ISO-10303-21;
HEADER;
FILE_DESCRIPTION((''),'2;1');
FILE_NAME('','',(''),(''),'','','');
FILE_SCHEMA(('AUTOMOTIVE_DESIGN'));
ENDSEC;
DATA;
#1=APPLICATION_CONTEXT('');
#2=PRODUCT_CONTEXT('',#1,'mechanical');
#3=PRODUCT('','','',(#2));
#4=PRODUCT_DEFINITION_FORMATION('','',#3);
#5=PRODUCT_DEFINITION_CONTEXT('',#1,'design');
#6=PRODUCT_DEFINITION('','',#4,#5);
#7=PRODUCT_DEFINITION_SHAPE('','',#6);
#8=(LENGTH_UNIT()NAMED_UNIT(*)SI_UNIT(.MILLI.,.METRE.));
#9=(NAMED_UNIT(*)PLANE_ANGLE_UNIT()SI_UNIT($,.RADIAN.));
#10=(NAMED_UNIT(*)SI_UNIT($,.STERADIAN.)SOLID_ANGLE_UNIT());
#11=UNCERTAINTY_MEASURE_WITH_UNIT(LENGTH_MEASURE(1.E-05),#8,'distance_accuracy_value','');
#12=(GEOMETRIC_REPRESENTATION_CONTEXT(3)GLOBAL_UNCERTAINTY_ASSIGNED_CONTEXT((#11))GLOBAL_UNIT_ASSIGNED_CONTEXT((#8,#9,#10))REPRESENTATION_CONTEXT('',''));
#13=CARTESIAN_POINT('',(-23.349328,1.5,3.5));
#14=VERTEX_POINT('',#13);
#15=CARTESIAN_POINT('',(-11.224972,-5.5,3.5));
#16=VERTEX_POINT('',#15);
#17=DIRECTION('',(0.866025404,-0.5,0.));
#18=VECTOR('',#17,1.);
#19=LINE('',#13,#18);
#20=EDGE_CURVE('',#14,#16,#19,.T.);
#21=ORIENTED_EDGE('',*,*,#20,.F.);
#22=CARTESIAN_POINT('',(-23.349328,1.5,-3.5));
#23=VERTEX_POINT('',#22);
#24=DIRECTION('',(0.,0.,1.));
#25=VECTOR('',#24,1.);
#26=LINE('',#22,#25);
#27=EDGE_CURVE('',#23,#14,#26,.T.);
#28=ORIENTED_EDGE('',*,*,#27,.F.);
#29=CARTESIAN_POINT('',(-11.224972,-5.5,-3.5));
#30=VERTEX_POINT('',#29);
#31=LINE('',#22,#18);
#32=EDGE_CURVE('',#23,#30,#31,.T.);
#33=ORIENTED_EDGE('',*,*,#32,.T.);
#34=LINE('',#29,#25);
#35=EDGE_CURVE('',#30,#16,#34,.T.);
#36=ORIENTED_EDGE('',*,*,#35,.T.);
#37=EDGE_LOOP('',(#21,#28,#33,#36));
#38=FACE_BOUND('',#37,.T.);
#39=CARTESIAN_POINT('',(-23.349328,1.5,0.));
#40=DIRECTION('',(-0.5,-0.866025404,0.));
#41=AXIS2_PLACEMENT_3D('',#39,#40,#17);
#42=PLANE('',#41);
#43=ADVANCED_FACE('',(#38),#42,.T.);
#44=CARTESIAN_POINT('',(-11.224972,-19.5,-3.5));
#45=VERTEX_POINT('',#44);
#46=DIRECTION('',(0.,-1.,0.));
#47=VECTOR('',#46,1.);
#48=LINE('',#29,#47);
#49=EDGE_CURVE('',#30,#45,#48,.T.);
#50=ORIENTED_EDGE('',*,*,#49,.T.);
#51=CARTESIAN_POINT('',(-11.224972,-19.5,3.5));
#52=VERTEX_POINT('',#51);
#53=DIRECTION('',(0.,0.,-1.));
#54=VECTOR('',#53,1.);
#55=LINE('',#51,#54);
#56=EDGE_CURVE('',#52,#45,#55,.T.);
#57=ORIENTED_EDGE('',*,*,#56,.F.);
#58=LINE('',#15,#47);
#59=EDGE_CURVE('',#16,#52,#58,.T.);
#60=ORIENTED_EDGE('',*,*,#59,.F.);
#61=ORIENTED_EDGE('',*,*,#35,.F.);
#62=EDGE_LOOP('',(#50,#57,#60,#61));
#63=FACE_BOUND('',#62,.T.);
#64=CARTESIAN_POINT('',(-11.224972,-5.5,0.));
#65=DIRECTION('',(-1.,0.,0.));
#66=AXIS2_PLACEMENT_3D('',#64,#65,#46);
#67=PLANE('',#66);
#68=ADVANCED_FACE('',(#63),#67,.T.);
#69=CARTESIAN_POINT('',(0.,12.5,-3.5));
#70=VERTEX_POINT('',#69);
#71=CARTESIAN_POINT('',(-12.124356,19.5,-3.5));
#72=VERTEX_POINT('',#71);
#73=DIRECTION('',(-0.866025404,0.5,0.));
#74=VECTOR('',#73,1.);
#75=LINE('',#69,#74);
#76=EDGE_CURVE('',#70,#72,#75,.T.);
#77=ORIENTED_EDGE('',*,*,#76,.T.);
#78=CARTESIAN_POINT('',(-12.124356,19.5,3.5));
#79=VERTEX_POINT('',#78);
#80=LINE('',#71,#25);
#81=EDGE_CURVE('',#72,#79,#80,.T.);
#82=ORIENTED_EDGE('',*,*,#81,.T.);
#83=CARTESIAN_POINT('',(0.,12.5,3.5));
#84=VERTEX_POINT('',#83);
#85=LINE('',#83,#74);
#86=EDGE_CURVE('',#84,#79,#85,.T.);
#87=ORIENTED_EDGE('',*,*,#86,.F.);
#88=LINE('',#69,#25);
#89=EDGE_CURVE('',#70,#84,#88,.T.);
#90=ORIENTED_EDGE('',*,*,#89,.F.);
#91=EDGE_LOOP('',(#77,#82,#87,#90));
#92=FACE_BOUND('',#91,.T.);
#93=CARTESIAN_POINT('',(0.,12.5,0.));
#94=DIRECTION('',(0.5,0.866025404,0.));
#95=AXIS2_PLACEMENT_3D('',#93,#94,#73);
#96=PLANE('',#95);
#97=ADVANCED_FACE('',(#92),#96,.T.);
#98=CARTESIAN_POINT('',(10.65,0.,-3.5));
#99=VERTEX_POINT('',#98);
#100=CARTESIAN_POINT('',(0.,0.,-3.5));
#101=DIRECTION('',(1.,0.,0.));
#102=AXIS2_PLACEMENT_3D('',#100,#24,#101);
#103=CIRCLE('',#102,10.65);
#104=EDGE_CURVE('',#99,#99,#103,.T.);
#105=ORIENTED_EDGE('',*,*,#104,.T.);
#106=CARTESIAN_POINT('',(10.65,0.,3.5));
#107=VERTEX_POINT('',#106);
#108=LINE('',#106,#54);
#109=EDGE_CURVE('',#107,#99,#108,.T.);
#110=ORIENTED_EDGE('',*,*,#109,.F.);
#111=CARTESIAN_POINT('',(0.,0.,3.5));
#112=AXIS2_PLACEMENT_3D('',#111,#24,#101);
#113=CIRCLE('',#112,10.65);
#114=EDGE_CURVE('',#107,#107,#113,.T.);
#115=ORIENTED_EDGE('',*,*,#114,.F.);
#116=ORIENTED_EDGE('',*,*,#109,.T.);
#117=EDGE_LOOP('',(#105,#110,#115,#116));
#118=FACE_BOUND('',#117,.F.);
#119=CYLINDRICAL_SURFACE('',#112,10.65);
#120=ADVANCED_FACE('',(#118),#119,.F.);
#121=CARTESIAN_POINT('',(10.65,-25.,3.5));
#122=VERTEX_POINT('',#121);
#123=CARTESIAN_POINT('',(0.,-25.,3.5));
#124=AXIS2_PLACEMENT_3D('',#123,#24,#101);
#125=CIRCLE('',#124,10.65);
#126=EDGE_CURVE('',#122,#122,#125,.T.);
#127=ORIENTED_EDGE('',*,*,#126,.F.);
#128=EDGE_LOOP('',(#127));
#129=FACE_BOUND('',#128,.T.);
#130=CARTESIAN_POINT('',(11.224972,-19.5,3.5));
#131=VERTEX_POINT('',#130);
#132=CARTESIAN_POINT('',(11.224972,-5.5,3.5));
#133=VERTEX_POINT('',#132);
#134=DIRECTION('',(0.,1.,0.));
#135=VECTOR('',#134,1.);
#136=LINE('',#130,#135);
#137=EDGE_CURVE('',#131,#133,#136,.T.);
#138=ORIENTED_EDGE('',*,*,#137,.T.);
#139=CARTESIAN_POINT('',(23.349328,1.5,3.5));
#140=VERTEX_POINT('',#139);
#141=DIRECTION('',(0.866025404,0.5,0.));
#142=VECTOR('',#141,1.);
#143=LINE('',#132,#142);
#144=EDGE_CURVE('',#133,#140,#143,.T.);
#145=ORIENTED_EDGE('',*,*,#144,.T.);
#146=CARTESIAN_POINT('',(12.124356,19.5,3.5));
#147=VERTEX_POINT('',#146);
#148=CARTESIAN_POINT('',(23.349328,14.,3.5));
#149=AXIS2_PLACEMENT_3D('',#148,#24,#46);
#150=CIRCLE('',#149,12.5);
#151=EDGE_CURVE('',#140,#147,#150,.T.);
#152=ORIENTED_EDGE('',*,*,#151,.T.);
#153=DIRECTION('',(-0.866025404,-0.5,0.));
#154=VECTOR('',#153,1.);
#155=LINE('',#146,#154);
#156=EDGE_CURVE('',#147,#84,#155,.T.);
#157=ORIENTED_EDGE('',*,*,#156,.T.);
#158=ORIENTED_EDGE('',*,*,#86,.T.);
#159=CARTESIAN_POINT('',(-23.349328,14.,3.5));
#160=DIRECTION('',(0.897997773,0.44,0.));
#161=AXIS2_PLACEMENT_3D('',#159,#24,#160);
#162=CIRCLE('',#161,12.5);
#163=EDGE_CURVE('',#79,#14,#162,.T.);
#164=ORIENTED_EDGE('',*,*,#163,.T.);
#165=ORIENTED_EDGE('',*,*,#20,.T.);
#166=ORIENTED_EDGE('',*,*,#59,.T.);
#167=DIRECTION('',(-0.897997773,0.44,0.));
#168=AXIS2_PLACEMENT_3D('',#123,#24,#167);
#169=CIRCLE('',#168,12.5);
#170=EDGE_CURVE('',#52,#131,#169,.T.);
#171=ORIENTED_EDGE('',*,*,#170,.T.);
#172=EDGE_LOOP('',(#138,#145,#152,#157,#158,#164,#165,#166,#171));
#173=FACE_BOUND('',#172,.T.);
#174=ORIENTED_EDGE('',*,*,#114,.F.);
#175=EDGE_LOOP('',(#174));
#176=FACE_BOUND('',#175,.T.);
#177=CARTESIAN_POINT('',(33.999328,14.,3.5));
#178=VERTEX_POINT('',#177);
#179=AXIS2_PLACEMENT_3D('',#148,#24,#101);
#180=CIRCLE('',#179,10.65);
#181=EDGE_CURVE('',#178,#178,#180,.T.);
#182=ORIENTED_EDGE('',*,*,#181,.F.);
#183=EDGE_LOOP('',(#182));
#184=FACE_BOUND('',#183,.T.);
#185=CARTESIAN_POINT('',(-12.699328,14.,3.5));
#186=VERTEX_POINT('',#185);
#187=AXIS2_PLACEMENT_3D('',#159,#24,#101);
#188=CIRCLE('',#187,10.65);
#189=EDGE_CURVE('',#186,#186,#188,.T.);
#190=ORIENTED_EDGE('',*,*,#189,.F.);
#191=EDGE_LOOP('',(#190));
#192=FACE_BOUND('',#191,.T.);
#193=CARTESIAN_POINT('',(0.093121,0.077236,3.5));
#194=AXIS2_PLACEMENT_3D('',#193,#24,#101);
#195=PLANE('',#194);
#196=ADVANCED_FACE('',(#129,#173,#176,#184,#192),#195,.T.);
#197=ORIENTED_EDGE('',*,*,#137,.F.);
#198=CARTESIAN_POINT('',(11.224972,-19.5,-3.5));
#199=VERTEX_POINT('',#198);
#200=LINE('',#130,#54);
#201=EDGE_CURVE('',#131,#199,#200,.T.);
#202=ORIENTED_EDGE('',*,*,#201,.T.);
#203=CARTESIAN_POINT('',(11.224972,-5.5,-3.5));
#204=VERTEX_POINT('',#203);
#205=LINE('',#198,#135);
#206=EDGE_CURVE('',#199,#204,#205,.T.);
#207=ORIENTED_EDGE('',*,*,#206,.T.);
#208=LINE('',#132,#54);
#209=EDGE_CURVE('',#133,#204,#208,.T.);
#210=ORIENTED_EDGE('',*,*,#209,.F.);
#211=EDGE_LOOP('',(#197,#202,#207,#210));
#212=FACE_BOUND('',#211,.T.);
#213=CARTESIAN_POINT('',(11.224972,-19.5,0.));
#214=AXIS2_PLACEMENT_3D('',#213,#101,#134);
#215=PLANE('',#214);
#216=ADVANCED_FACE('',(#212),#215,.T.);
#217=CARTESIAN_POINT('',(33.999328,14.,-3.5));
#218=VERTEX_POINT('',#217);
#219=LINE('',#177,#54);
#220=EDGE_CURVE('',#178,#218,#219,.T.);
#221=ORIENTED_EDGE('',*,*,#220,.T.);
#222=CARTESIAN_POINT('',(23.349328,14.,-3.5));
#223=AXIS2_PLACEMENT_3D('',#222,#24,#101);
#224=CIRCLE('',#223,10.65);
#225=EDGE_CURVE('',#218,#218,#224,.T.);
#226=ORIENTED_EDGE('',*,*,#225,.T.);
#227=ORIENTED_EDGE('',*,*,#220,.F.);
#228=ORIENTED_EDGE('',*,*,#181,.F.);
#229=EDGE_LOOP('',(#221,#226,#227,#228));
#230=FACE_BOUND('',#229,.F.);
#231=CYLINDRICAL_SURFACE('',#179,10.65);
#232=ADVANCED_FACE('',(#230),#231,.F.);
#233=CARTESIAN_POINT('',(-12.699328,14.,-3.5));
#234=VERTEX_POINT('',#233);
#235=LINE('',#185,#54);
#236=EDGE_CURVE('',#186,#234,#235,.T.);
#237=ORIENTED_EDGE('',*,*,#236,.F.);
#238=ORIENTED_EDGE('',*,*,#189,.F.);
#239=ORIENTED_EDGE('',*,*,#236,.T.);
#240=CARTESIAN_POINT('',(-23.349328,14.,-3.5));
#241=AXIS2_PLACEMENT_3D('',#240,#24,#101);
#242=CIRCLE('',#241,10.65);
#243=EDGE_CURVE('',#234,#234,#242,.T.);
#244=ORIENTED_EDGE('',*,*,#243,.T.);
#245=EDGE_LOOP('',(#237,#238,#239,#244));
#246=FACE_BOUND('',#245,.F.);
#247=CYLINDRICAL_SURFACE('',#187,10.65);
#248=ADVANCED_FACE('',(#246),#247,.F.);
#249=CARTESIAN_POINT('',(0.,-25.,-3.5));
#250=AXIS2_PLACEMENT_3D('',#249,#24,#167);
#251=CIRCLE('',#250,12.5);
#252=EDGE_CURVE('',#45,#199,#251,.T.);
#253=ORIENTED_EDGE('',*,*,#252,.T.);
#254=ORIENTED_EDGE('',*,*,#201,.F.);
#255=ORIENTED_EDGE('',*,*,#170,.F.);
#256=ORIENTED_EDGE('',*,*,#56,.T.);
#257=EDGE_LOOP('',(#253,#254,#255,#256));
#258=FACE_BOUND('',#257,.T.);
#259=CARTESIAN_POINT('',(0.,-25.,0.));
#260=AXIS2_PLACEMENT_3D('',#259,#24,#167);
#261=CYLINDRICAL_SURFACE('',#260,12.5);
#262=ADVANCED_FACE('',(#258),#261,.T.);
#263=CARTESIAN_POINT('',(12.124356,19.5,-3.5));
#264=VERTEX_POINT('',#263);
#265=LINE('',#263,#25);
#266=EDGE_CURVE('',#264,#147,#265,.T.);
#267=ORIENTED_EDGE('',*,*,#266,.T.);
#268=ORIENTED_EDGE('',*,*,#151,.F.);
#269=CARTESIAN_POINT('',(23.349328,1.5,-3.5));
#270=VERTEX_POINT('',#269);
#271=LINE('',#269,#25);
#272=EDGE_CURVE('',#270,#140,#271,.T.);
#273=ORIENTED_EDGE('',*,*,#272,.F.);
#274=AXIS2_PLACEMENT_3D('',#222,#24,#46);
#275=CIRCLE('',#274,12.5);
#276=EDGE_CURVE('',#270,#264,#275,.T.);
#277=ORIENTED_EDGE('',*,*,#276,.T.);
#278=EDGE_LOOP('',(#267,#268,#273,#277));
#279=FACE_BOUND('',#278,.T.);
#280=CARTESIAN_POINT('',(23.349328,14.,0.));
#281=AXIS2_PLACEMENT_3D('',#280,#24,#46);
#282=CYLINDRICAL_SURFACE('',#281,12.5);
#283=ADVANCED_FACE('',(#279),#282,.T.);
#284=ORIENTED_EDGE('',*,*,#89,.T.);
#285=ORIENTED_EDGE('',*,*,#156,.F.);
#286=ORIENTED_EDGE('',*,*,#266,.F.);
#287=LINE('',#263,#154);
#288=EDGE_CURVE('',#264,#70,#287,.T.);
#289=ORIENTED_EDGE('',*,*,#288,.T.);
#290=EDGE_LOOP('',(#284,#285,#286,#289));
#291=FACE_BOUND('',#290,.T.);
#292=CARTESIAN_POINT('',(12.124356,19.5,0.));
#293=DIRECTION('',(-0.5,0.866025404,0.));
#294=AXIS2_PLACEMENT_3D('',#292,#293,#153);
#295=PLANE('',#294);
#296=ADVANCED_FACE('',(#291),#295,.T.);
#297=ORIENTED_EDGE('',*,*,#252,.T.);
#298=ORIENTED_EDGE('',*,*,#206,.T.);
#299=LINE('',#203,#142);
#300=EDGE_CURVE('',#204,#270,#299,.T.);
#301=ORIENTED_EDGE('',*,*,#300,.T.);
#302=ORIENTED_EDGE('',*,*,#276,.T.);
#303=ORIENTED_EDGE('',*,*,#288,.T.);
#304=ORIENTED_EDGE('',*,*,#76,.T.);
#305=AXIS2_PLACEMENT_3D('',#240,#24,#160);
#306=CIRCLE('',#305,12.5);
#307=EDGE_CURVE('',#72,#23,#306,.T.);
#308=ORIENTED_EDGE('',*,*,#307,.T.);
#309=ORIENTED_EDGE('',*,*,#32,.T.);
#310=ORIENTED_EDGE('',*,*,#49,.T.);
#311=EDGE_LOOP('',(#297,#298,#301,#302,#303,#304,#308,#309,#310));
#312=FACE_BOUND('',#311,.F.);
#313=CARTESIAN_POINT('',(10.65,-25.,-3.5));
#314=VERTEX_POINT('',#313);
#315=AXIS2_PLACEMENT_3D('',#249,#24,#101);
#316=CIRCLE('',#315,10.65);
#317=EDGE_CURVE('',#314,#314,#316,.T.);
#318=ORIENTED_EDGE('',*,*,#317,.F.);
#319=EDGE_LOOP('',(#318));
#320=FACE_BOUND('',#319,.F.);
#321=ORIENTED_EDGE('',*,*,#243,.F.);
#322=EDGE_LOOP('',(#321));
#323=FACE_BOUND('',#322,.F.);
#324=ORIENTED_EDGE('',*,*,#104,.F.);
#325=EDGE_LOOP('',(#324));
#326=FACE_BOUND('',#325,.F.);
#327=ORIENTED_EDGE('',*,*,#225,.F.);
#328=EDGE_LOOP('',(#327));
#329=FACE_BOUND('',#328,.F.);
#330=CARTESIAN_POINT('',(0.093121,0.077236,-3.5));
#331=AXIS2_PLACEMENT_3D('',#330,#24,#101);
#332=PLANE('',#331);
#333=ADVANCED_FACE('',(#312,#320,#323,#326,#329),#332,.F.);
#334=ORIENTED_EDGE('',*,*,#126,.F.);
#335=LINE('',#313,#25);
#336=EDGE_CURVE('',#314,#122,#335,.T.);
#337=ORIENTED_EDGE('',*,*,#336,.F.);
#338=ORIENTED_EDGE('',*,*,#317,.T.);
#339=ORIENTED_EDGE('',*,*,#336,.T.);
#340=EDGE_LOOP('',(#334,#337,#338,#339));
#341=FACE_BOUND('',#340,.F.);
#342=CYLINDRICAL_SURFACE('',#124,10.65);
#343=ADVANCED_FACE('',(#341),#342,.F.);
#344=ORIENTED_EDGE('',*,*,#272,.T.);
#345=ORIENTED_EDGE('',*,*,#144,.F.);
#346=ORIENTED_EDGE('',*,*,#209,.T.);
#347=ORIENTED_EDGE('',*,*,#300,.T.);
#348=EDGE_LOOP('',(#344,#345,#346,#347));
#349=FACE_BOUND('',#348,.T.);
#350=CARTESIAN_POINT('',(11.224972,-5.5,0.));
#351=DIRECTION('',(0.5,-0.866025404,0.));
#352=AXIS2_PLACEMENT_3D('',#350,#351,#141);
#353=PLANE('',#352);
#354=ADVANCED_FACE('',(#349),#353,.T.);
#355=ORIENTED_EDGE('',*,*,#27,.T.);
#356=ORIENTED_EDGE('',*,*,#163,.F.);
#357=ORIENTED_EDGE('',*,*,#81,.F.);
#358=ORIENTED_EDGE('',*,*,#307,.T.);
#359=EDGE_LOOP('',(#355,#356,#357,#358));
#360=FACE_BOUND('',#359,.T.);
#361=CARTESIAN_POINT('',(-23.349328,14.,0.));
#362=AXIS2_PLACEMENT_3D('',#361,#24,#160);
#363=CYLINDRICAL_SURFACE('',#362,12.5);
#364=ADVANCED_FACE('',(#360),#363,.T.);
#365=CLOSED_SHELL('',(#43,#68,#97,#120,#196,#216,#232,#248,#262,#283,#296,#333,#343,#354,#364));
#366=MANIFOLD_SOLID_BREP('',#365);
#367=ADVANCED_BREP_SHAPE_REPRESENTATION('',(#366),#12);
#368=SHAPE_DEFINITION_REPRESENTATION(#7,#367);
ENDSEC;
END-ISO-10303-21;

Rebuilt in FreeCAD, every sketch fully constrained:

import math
import FreeCAD as App
import Part
import Sketcher

V = App.Vector
Q = App.Units.Quantity

doc = App.newDocument("Part")
params = doc.addObject("Spreadsheet::Sheet", "Params")
for row, (alias, value) in enumerate([
    ("sketch1_radius", "12.5 mm"),
    ("sketch1_height", "14 mm"),
    ("sketch1_length", "14 mm"),
    ("pad1_length", "7 mm"),
    ("sketch2_diameter", "21.3 mm"),
    ("pocket1_length", "14 mm"),
], start=1):
    params.set(f"A{row}", alias)
    params.set(f"B{row}", "=" + value)
    params.setAlias(f"B{row}", alias)

body = doc.addObject("PartDesign::Body", "Body")

sketch1 = doc.addObject("Sketcher::SketchObject", "Sketch")
body.addObject(sketch1)
sketch1.AttachmentSupport = (doc.XY_Plane, [""])
sketch1.MapMode = "FlatFace"
sketch1.addGeometry(Part.LineSegment(V(11, -6, 0), V(23, 2, 0)), False)
sketch1.addGeometry(Part.ArcOfCircle(Part.Circle(V(23, 14, 0), V(0, 0, 1), 12), math.radians(-90), math.radians(154)), False)
sketch1.addGeometry(Part.LineSegment(V(12, 20, 0), V(0, 12, 0)), False)
sketch1.addGeometry(Part.LineSegment(V(0, 12, 0), V(-12, 20, 0)), False)
sketch1.addGeometry(Part.ArcOfCircle(Part.Circle(V(-23, 14, 0), V(0, 0, 1), 12), math.radians(26), math.radians(270)), False)
sketch1.addGeometry(Part.LineSegment(V(-23, 2, 0), V(-11, -6, 0)), False)
sketch1.addGeometry(Part.LineSegment(V(-11, -6, 0), V(-11, -20, 0)), False)
sketch1.addGeometry(Part.ArcOfCircle(Part.Circle(V(0, -25, 0), V(0, 0, 1), 12), math.radians(154), math.radians(386)), False)
sketch1.addGeometry(Part.LineSegment(V(11, -20, 0), V(11, -6, 0)), False)
sketch1.addConstraint(Sketcher.Constraint("Coincident", 0, 2, 1, 1))
sketch1.addConstraint(Sketcher.Constraint("Coincident", 1, 2, 2, 1))
sketch1.addConstraint(Sketcher.Constraint("Coincident", 2, 2, 3, 1))
sketch1.addConstraint(Sketcher.Constraint("Coincident", 3, 2, 4, 1))
sketch1.addConstraint(Sketcher.Constraint("Coincident", 4, 2, 5, 1))
sketch1.addConstraint(Sketcher.Constraint("Coincident", 5, 2, 6, 1))
sketch1.addConstraint(Sketcher.Constraint("Coincident", 6, 2, 7, 1))
sketch1.addConstraint(Sketcher.Constraint("Coincident", 7, 2, 8, 1))
sketch1.addConstraint(Sketcher.Constraint("Coincident", 8, 2, 0, 1))
sketch1.addConstraint(Sketcher.Constraint("Vertical", 6))
sketch1.addConstraint(Sketcher.Constraint("Vertical", 8))
sketch1.addConstraint(Sketcher.Constraint("Equal", 1, 4))
sketch1.addConstraint(Sketcher.Constraint("Equal", 4, 7))
sketch1.addConstraint(Sketcher.Constraint("Symmetric", 1, 3, 4, 3, -2))
sketch1.addConstraint(Sketcher.Constraint("Symmetric", 6, 2, 7, 2, -2))
sketch1.addConstraint(Sketcher.Constraint("PointOnObject", 2, 2, -2))
sketch1.addConstraint(Sketcher.Constraint("Parallel", 0, 2))
sketch1.addConstraint(Sketcher.Constraint("Parallel", 3, 5))
sketch1.addConstraint(Sketcher.Constraint("Horizontal", 1, 2, 3, 2))
sketch1.addConstraint(Sketcher.Constraint("Horizontal", 5, 2, 8, 2))
sketch1.addConstraint(Sketcher.Constraint("Vertical", 1, 3, 0, 2))
sketch1.addConstraint(Sketcher.Constraint("Equal", 0, 2))
sketch1.addConstraint(Sketcher.Constraint("Radius", 1, Q("12.5 mm")))
sketch1.addConstraint(Sketcher.Constraint("DistanceY", 6, 2, 6, 1, Q("14 mm")))
sketch1.addConstraint(Sketcher.Constraint("Angle", 0, Q("30 deg")))
sketch1.addConstraint(Sketcher.Constraint("Distance", 0, Q("14 mm")))
sketch1.addConstraint(Sketcher.Constraint("DistanceY", -1, 1, 1, 3, Q("14 mm")))
sketch1.addConstraint(Sketcher.Constraint("DistanceY", 7, 3, -1, 1, Q("25 mm")))
sketch1.setExpression("Constraints[22]", "Params.sketch1_radius")
sketch1.setExpression("Constraints[23]", "Params.sketch1_height")
sketch1.setExpression("Constraints[25]", "Params.sketch1_length")
pad1 = doc.addObject("PartDesign::Pad", "Pad")
body.addObject(pad1)
pad1.Profile = sketch1
pad1.setExpression("Length", "Params.pad1_length")
pad1.Midplane = True

sketch2 = doc.addObject("Sketcher::SketchObject", "Sketch001")
body.addObject(sketch2)
sketch2.AttachmentSupport = (doc.XY_Plane, [""])
sketch2.MapMode = "FlatFace"
sketch2.AttachmentOffset = App.Placement(V(0, 0, 3.5), App.Rotation())
sketch2.addGeometry(Part.Circle(V(-23, 14, 0), V(0, 0, 1), 11), False)
sketch2.addGeometry(Part.Circle(V(0, 0, 0), V(0, 0, 1), 11), False)
sketch2.addGeometry(Part.Circle(V(23, 14, 0), V(0, 0, 1), 11), False)
sketch2.addGeometry(Part.Circle(V(0, -25, 0), V(0, 0, 1), 11), False)
sketch2.addConstraint(Sketcher.Constraint("Coincident", 1, 3, -1, 1))
sketch2.addConstraint(Sketcher.Constraint("Equal", 0, 1))
sketch2.addConstraint(Sketcher.Constraint("Equal", 1, 2))
sketch2.addConstraint(Sketcher.Constraint("Equal", 2, 3))
sketch2.addConstraint(Sketcher.Constraint("Symmetric", 0, 3, 2, 3, -2))
sketch2.addConstraint(Sketcher.Constraint("PointOnObject", 3, 3, -2))
sketch2.addConstraint(Sketcher.Constraint("Diameter", 0, Q("21.3 mm")))
sketch2.addConstraint(Sketcher.Constraint("DistanceY", -1, 1, 0, 3, Q("14 mm")))
sketch2.addConstraint(Sketcher.Constraint("DistanceY", 3, 3, -1, 1, Q("25 mm")))
sketch2.addConstraint(Sketcher.Constraint("DistanceX", 0, 3, -1, 1, Q("23.349328 mm")))
sketch2.setExpression("Constraints[6]", "Params.sketch2_diameter")
pocket1 = doc.addObject("PartDesign::Pocket", "Pocket")
body.addObject(pocket1)
pocket1.Profile = sketch2
pocket1.setExpression("Length", "Params.pocket1_length")
pocket1.Midplane = True

doc.recompute()
